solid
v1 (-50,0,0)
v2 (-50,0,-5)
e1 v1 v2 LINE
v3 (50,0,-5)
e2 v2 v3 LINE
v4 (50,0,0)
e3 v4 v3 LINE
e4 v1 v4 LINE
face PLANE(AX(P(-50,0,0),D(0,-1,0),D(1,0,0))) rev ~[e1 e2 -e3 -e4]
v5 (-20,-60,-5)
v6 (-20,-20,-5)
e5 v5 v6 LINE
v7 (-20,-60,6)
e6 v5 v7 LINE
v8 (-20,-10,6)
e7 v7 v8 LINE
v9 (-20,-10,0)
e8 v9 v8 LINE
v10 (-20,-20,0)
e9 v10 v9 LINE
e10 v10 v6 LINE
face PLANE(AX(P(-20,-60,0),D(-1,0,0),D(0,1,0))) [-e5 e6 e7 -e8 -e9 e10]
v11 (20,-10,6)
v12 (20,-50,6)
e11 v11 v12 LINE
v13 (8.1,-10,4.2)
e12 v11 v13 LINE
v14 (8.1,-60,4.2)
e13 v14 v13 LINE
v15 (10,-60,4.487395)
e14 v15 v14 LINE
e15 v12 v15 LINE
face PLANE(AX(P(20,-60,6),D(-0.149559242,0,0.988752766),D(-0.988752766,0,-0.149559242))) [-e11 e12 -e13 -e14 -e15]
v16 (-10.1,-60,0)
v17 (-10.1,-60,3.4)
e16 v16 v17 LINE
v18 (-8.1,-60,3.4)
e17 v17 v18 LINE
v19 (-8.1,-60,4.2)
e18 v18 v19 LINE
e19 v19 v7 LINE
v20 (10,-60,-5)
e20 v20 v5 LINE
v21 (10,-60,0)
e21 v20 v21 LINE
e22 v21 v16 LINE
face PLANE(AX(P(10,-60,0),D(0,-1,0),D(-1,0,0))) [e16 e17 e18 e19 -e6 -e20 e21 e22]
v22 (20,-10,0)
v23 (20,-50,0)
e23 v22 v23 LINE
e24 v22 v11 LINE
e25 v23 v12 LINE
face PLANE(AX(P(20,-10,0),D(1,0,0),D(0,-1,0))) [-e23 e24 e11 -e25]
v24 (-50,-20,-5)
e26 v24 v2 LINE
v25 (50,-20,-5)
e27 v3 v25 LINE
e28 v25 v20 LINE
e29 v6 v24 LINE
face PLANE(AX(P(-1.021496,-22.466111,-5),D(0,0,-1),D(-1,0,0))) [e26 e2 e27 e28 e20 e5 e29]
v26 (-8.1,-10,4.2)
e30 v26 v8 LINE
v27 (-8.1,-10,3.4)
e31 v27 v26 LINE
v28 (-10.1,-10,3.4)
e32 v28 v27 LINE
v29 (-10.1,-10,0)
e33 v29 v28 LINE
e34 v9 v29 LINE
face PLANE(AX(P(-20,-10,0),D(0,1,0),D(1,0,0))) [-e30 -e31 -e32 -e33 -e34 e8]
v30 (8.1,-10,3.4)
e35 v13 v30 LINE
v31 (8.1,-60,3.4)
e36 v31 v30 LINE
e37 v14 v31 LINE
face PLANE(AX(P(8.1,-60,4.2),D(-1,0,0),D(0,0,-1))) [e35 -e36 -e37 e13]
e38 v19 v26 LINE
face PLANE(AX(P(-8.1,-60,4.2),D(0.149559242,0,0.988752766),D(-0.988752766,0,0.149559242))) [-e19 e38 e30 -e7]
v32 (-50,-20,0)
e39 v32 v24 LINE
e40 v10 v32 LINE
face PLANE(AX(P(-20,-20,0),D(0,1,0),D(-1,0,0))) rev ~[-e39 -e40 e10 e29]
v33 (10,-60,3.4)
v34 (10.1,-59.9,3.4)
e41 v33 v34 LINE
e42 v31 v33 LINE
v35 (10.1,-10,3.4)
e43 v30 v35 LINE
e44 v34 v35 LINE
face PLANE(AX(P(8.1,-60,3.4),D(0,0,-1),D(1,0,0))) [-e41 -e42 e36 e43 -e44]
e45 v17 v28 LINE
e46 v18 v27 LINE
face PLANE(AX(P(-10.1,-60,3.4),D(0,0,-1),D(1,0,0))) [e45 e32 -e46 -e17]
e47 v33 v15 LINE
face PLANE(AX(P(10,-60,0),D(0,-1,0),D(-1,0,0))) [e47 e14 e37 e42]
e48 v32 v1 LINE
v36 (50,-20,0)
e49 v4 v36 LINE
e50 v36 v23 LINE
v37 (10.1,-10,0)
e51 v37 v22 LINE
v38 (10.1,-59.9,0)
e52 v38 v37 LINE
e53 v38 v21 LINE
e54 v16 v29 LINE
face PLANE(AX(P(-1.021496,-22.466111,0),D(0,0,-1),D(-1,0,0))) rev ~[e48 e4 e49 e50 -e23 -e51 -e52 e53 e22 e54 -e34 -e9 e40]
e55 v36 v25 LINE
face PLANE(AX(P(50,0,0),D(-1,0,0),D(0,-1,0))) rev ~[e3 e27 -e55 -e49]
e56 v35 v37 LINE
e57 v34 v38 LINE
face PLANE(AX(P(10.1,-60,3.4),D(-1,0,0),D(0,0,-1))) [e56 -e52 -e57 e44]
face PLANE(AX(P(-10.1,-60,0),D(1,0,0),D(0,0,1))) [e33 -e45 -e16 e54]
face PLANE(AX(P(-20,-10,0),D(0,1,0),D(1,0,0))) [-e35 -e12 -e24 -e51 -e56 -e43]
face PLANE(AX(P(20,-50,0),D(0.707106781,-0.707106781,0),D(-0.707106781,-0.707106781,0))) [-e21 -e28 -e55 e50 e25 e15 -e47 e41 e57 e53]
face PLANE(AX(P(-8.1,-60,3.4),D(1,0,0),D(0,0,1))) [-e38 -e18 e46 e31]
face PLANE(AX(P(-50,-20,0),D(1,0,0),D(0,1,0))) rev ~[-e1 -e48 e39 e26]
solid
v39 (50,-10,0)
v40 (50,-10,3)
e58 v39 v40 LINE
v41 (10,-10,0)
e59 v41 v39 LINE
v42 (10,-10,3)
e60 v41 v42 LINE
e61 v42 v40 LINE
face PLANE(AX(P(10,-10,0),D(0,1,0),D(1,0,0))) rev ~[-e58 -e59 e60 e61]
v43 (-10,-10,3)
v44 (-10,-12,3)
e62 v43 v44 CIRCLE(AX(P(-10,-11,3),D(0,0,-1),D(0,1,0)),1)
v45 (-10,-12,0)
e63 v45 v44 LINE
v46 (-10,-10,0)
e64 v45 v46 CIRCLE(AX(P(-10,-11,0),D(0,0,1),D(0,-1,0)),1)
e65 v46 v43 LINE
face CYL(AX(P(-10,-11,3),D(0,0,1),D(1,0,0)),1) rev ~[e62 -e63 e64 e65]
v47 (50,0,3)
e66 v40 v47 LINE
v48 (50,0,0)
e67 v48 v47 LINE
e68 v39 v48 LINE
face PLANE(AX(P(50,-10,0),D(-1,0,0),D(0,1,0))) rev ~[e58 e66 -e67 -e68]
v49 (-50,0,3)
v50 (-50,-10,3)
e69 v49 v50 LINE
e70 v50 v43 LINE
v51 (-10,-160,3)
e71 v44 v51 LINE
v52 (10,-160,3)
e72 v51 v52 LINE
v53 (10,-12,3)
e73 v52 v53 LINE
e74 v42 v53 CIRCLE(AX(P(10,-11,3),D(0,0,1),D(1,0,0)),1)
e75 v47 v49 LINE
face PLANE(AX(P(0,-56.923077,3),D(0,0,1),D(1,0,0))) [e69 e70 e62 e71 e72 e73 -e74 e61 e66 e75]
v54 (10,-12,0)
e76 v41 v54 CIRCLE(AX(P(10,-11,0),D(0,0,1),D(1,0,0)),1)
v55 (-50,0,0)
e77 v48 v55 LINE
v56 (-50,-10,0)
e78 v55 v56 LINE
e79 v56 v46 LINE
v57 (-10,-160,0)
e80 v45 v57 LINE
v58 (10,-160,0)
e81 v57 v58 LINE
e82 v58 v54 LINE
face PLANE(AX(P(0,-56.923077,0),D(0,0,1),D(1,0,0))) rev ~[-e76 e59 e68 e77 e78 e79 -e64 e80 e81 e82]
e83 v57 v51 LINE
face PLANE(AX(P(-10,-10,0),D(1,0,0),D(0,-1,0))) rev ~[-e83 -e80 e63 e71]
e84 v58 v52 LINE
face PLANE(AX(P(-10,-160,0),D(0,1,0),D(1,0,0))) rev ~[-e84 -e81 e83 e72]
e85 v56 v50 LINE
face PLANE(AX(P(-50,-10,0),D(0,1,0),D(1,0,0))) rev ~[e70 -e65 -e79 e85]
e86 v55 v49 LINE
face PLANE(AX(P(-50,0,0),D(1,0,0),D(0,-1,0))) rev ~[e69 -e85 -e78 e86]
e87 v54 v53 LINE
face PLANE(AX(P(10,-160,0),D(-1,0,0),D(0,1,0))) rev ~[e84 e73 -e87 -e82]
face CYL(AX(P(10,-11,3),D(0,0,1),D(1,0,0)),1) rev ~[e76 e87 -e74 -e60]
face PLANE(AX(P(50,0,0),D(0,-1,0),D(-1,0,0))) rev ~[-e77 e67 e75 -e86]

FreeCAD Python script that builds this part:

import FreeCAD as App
import Part
import Sketcher

V = App.Vector
Q = App.Units.Quantity


def add_polygon(sketch, points):
    """Adds a closed chain of lines whose ends are joined by coincident constraints."""
    first, n = sketch.GeometryCount, len(points)
    for a, b in zip(points, points[1:] + points[:1]):
        sketch.addGeometry(Part.LineSegment(App.Vector(*a, 0), App.Vector(*b, 0)), False)
    for i in range(n):
        sketch.addConstraint(Sketcher.Constraint("Coincident", first + i, 2, first + (i + 1) % n, 1))

doc = App.newDocument("Part")
body = doc.addObject("PartDesign::Body", "Body")

sketch1 = body.newObject("Sketcher::SketchObject", "Sketch")
sketch1.AttachmentSupport = (doc.getObject("XY_Plane"), [""])
sketch1.MapMode = "FlatFace"
add_polygon(sketch1, [(10, -160), (10, -10), (50, -10), (50, 0), (-50, 0), (-50, -10), (-10, -10), (-10, -160)])
sketch1.addConstraint([
    Sketcher.Constraint("Vertical", 0),
    Sketcher.Constraint("Horizontal", 1),
    Sketcher.Constraint("Vertical", 2),
    Sketcher.Constraint("Horizontal", 3),
    Sketcher.Constraint("Vertical", 4),
    Sketcher.Constraint("Horizontal", 5),
    Sketcher.Constraint("Vertical", 6),
    Sketcher.Constraint("Horizontal", 7),
    Sketcher.Constraint("Symmetric", 2, 2, 3, 2, -1, 1),
    Sketcher.Constraint("Symmetric", 0, 2, 5, 2, -2),
    Sketcher.Constraint("DistanceX", 1, 1, 1, 2, Q("40 mm")),
    Sketcher.Constraint("DistanceX", 3, 2, 3, 1, Q("100 mm")),
    Sketcher.Constraint("DistanceY", 0, 1, 0, 2, Q("150 mm")),
    Sketcher.Constraint("DistanceY", 2, 1, 2, 2, Q("10 mm")),
])
pad1 = body.newObject("PartDesign::Pad", "Pad")
pad1.Profile = sketch1
pad1.Length = 3

sketch2 = body.newObject("Sketcher::SketchObject", "Sketch001")
sketch2.AttachmentSupport = (doc.getObject("XY_Plane"), [""])
sketch2.MapMode = "FlatFace"
sketch2.AttachmentOffset = App.Placement(V(0, 0, 3), App.Rotation())
sketch2.addGeometry([
    Part.Circle(V(-10, -11, 0), V(0, 0, 1), 1),
    Part.Circle(V(10, -11, 0), V(0, 0, 1), 1),
], False)
sketch2.addConstraint([
    Sketcher.Constraint("Equal", 0, 1),
    Sketcher.Constraint("Symmetric", 0, 3, 1, 3, -2),
    Sketcher.Constraint("Diameter", 0, Q("2 mm")),
    Sketcher.Constraint("DistanceX", 0, 3, -1, 1, Q("10 mm")),
    Sketcher.Constraint("DistanceY", 0, 3, -1, 1, Q("11 mm")),
])
pocket1 = body.newObject("PartDesign::Pocket", "Pocket")
pocket1.Profile = sketch2
pocket1.Length = 3
body2 = doc.addObject("PartDesign::Body", "Body001")

sketch3 = body2.newObject("Sketcher::SketchObject", "Sketch002")
sketch3.AttachmentSupport = (doc.getObject("XY_Plane001"), [""])
sketch3.MapMode = "FlatFace"
add_polygon(sketch3, [(50, 0), (-50, 0), (-50, -20), (-20, -20), (-20, -60), (10, -60), (50, -20)])
sketch3.addConstraint([
    Sketcher.Constraint("Horizontal", 0),
    Sketcher.Constraint("Vertical", 1),
    Sketcher.Constraint("Horizontal", 2),
    Sketcher.Constraint("Vertical", 3),
    Sketcher.Constraint("Horizontal", 4),
    Sketcher.Constraint("Vertical", 6),
    Sketcher.Constraint("Symmetric", 0, 2, 6, 2, -1, 1),
    Sketcher.Constraint("Horizontal", 2, 2, 5, 2),
    Sketcher.Constraint("Equal", 2, 4),
    Sketcher.Constraint("DistanceX", 0, 2, 0, 1, Q("100 mm")),
    Sketcher.Constraint("DistanceX", 2, 1, 2, 2, Q("30 mm")),
    Sketcher.Constraint("DistanceY", 1, 2, 1, 1, Q("20 mm")),
    Sketcher.Constraint("DistanceY", 3, 2, 3, 1, Q("40 mm")),
])
pad2 = body2.newObject("PartDesign::Pad", "Pad001")
pad2.Profile = sketch3
pad2.Length = 5
pad2.Reversed = True

sketch4 = body2.newObject("Sketcher::SketchObject", "Sketch003")
sketch4.AttachmentSupport = (doc.getObject("XY_Plane001"), [""])
sketch4.MapMode = "FlatFace"
add_polygon(sketch4, [(20, -10), (-20, -10), (-20, -60), (10, -60), (20, -50)])
sketch4.addConstraint([
    Sketcher.Constraint("Horizontal", 0),
    Sketcher.Constraint("Vertical", 1),
    Sketcher.Constraint("Horizontal", 2),
    Sketcher.Constraint("Vertical", 4),
    Sketcher.Constraint("Equal", 0, 4),
    Sketcher.Constraint("DistanceX", 0, 2, 0, 1, Q("40 mm")),
    Sketcher.Constraint("DistanceX", 2, 1, 2, 2, Q("30 mm")),
    Sketcher.Constraint("DistanceY", 1, 2, 1, 1, Q("50 mm")),
    Sketcher.Constraint("DistanceX", 0, 2, -1, 1, Q("20 mm")),
    Sketcher.Constraint("DistanceY", 0, 2, -1, 1, Q("10 mm")),
])
pad3 = body2.newObject("PartDesign::Pad", "Pad002")
pad3.Profile = sketch4
pad3.Length = 6

sketch5 = body2.newObject("Sketcher::SketchObject", "Sketch004")
sketch5.AttachmentSupport = (doc.getObject("XZ_Plane001"), [""])
sketch5.MapMode = "FlatFace"
sketch5.AttachmentOffset = App.Placement(V(0, 0, 60), App.Rotation())
add_polygon(sketch5, [(10.1, 0), (10.1, 3.4), (8.1, 3.4), (8.1, 4.2), (20, 6), (20, 8), (-20, 8), (-20, 6), (-8.1, 4.2), (-8.1, 3.4), (-10.1, 3.4), (-10.1, 0)])
sketch5.addConstraint([
    Sketcher.Constraint("Vertical", 0),
    Sketcher.Constraint("Horizontal", 1),
    Sketcher.Constraint("Vertical", 2),
    Sketcher.Constraint("Vertical", 4),
    Sketcher.Constraint("Horizontal", 5),
    Sketcher.Constraint("Vertical", 6),
    Sketcher.Constraint("Vertical", 8),
    Sketcher.Constraint("Horizontal", 9),
    Sketcher.Constraint("Vertical", 10),
    Sketcher.Constraint("Horizontal", 11),
    Sketcher.Constraint("Symmetric", 10, 2, 11, 2, -1, 1),
    Sketcher.Constraint("Symmetric", 3, 2, 6, 2, -2),
    Sketcher.Constraint("Symmetric", 2, 2, 7, 2, -2),
    Sketcher.Constraint("Horizontal", 1, 2, 8, 2),
    Sketcher.Constraint("Equal", 9, 4),
    Sketcher.Constraint("DistanceX", 1, 2, 1, 1, Q("2 mm")),
    Sketcher.Constraint("DistanceX", 5, 2, 5, 1, Q("40 mm")),
    Sketcher.Constraint("DistanceX", 11, 1, 11, 2, Q("20.2 mm")),
    Sketcher.Constraint("DistanceY", 0, 1, 0, 2, Q("3.4 mm")),
    Sketcher.Constraint("DistanceY", 2, 1, 2, 2, Q("0.8 mm")),
    Sketcher.Constraint("DistanceY", -1, 1, 3, 2, Q("6 mm")),
])
pocket2 = body2.newObject("PartDesign::Pocket", "Pocket001")
pocket2.Profile = sketch5
pocket2.Length = 50

doc.recompute()
